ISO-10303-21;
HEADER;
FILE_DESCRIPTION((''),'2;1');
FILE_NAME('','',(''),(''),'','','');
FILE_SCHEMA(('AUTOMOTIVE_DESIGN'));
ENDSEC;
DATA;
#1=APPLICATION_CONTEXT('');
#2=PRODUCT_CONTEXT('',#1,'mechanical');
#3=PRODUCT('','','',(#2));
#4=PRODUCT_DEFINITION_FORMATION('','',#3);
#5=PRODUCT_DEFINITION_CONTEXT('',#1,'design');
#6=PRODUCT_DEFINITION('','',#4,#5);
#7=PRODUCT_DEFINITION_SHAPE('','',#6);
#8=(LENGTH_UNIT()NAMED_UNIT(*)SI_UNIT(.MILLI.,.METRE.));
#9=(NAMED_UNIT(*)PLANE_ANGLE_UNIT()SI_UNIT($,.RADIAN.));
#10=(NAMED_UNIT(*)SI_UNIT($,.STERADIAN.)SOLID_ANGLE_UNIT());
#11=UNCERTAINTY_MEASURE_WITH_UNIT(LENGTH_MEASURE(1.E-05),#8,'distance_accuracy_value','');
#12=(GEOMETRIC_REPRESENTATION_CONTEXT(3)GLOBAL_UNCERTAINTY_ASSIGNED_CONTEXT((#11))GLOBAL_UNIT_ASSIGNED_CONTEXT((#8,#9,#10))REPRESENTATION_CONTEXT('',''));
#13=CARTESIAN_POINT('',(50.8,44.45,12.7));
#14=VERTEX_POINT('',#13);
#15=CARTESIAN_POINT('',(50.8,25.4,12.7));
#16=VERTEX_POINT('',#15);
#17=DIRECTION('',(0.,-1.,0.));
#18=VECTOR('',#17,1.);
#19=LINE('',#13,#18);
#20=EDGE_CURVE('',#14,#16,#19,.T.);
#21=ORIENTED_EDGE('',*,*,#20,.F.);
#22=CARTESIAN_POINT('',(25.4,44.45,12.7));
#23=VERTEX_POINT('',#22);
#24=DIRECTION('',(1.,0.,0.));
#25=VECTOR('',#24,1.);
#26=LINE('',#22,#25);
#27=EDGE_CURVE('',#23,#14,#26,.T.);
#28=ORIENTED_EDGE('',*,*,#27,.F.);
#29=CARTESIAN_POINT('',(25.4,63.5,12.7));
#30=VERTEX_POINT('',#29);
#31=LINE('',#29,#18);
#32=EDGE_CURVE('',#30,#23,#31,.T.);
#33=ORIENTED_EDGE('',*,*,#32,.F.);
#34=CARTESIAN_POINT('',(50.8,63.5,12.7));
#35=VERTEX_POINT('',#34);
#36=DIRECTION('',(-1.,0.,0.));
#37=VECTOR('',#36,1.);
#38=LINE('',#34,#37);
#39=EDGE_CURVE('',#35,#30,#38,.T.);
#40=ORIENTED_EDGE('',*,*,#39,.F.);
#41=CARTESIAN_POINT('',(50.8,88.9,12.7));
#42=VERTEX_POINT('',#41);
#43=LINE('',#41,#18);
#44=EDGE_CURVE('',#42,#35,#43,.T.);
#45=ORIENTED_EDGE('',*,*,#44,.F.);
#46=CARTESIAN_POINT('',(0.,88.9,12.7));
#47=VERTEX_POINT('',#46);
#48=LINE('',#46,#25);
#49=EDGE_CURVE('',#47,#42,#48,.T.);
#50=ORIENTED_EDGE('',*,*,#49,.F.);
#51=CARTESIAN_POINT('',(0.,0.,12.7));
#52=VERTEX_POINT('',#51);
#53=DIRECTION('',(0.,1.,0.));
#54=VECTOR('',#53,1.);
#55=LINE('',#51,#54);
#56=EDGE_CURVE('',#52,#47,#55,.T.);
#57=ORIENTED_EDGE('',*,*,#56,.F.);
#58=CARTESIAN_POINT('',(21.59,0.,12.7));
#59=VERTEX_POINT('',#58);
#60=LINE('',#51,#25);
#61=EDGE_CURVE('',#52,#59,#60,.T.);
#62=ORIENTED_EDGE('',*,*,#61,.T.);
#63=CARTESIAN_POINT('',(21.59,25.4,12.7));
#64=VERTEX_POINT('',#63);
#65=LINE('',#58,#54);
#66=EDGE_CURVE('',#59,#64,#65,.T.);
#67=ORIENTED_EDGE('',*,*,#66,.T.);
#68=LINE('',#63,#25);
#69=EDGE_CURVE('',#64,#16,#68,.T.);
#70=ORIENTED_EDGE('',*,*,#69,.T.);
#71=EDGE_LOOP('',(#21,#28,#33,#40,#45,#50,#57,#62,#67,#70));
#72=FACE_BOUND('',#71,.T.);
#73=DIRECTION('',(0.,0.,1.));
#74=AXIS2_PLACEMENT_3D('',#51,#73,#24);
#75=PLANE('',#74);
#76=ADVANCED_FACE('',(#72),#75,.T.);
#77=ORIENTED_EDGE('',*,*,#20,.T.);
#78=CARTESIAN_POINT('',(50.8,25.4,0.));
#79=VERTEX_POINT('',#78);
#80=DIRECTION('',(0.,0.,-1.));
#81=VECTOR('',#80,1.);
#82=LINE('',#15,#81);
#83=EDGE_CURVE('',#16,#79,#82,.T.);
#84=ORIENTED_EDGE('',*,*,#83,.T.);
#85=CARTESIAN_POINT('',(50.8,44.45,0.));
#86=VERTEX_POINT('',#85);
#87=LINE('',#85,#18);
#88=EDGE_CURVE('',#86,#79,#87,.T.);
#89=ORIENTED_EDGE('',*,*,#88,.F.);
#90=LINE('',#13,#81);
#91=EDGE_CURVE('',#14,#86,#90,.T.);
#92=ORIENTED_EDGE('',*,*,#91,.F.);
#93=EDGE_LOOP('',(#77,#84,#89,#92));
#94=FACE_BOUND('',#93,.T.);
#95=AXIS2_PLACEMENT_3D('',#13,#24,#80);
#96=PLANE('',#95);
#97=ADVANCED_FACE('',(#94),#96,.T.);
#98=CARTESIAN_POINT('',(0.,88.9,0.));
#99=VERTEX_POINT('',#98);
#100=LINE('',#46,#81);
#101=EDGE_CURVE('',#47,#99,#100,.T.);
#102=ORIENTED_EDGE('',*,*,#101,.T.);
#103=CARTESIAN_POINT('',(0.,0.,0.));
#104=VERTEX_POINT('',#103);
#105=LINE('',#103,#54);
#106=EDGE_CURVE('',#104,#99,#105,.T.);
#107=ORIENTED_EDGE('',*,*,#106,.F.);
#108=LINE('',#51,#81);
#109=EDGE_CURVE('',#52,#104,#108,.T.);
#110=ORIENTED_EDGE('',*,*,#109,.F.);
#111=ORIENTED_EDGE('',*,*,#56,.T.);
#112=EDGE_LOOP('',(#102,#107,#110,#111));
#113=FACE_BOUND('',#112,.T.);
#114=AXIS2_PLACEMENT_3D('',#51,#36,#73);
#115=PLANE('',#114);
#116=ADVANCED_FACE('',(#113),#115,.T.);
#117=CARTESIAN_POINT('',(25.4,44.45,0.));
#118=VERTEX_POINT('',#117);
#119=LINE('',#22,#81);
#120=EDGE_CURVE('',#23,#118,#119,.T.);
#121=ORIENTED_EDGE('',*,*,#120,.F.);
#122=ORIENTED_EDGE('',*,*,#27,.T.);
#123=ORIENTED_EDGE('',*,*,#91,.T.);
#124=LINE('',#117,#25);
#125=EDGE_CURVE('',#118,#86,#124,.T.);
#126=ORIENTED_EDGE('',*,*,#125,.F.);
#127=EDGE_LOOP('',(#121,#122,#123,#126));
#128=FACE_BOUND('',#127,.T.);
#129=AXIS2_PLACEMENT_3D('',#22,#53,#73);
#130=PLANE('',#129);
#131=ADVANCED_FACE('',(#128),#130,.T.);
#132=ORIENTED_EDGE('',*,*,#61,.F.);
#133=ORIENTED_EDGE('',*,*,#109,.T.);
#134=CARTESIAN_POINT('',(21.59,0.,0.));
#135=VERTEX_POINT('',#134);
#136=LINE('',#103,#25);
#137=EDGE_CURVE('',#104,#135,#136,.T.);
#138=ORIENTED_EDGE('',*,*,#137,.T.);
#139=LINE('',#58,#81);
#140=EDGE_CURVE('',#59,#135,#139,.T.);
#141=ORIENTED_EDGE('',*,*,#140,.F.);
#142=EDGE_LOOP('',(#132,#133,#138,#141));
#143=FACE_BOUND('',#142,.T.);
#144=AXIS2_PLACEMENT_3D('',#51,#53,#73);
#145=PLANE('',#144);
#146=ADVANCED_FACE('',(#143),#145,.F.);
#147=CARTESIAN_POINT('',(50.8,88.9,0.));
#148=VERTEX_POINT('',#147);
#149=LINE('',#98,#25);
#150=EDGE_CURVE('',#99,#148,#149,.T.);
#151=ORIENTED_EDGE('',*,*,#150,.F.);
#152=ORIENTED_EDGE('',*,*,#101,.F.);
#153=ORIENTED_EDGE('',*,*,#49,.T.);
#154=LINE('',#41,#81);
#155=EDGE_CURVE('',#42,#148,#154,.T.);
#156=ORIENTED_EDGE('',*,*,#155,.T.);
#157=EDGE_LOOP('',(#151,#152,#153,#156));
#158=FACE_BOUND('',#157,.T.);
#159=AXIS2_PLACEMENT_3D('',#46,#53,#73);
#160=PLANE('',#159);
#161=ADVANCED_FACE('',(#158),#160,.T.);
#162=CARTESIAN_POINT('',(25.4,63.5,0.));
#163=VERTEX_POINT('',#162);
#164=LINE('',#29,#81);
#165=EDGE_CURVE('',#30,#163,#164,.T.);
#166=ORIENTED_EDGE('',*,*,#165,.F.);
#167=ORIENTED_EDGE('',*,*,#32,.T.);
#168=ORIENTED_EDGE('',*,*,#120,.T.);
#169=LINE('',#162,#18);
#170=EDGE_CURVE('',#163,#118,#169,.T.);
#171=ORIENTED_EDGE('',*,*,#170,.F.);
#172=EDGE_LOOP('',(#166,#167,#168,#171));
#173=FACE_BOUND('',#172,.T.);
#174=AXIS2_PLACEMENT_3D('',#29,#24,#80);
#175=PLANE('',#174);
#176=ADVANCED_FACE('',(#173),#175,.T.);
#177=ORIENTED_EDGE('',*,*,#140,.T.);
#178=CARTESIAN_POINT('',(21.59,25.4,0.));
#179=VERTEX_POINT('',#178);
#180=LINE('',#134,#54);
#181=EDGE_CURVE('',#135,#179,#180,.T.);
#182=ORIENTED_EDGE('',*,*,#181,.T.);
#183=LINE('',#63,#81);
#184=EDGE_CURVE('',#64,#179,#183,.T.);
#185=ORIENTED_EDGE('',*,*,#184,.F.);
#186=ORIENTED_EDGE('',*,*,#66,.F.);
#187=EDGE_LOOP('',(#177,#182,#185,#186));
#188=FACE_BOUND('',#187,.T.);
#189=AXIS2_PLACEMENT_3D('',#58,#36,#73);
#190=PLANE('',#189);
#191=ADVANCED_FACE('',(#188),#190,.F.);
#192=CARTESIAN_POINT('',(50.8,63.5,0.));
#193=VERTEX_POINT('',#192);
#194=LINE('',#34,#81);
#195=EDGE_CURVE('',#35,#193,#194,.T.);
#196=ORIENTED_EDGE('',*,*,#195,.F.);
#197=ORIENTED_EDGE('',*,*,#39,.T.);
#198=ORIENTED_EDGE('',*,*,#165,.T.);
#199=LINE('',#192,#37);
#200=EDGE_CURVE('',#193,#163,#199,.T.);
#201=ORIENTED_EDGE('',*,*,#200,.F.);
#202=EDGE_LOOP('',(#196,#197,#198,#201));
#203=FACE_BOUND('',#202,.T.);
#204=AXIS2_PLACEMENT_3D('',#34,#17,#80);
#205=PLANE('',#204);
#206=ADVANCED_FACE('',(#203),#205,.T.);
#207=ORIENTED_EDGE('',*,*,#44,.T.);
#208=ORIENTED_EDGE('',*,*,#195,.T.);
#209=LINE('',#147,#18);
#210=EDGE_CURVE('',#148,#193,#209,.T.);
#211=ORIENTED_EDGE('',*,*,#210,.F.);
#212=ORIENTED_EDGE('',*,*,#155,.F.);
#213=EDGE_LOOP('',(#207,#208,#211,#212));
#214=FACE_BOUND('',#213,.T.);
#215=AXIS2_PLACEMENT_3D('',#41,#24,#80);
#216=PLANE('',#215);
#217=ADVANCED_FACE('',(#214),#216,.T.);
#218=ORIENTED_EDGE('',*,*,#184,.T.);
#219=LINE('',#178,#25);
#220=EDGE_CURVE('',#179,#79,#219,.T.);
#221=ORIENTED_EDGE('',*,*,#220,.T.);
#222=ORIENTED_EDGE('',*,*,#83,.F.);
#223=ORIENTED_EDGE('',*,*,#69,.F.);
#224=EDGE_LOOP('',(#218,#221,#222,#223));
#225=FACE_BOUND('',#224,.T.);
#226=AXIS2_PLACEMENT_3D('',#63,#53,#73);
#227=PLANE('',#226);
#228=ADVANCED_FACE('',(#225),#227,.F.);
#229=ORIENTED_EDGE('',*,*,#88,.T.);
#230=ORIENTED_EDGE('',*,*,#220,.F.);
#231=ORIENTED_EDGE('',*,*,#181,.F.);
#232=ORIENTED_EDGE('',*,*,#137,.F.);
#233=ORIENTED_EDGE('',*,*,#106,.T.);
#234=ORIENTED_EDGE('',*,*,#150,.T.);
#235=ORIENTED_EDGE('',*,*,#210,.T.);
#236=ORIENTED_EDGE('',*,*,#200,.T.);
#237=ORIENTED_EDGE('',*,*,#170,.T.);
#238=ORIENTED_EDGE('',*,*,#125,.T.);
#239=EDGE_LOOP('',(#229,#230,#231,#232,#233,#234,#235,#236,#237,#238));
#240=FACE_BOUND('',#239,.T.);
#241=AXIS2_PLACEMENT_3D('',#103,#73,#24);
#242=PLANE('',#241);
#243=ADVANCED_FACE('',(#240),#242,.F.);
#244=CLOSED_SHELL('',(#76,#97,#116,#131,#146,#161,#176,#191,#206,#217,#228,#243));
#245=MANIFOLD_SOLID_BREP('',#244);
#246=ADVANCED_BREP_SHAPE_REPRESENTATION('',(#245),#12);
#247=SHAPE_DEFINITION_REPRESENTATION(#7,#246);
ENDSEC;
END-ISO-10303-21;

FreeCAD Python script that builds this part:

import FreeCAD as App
import Part
import Sketcher
from FreeCAD import Vector
Q = App.Units.Quantity


def add_polygon(sketch, points):
    """Adds a closed chain of lines whose ends are joined by coincident constraints."""
    first, n = sketch.GeometryCount, len(points)
    for a, b in zip(points, points[1:] + points[:1]):
        sketch.addGeometry(Part.LineSegment(App.Vector(*a, 0), App.Vector(*b, 0)), False)
    for i in range(n):
        sketch.addConstraint(Sketcher.Constraint("Coincident", first + i, 2, first + (i + 1) % n, 1))

doc = App.newDocument("Part")
body = doc.addObject("PartDesign::Body", "Body")

# Sketch on XY plane
sketch1 = body.newObject("Sketcher::SketchObject", "Sketch")
sketch1.AttachmentSupport = (doc.getObject("XY_Plane"), [""])
sketch1.MapMode = "FlatFace"
add_polygon(sketch1, [(0, 88.9), (0, 0), (21.59, 0), (21.59, 25.4), (50.8, 25.4), (50.8, 44.45), (25.4, 44.45), (25.4, 63.5), (50.8, 63.5), (50.8, 88.9)])  # lines 0-9
sketch1.addConstraint(Sketcher.Constraint("Vertical", 0))
sketch1.addConstraint(Sketcher.Constraint("Horizontal", 1))
sketch1.addConstraint(Sketcher.Constraint("Vertical", 2))
sketch1.addConstraint(Sketcher.Constraint("Horizontal", 3))
sketch1.addConstraint(Sketcher.Constraint("Vertical", 4))
sketch1.addConstraint(Sketcher.Constraint("Horizontal", 5))
sketch1.addConstraint(Sketcher.Constraint("Vertical", 6))
sketch1.addConstraint(Sketcher.Constraint("Horizontal", 7))
sketch1.addConstraint(Sketcher.Constraint("Vertical", 8))
sketch1.addConstraint(Sketcher.Constraint("Horizontal", 9))
sketch1.addConstraint(Sketcher.Constraint("Coincident", 0, 2, -1, 1))
sketch1.addConstraint(Sketcher.Constraint("Vertical", 4, 2, 7, 2))
sketch1.addConstraint(Sketcher.Constraint("Equal", 7, 2))
sketch1.addConstraint(Sketcher.Constraint("Equal", 4, 6))
sketch1.addConstraint(Sketcher.Constraint("Equal", 2, 8))
sketch1.addConstraint(Sketcher.Constraint("DistanceX", 5, 2, 5, 1, Q("1 in")))
sketch1.addConstraint(Sketcher.Constraint("DistanceX", 9, 2, 9, 1, Q("2 in")))
sketch1.addConstraint(Sketcher.Constraint("DistanceY", 0, 2, 0, 1, Q("3.5 in")))
sketch1.addConstraint(Sketcher.Constraint("DistanceX", 1, 1, 1, 2, Q("0.85 in")))
pad1 = body.newObject("PartDesign::Pad", "Pad")
pad1.Profile = sketch1
pad1.Length = Q("0.5 in")

doc.recompute()
